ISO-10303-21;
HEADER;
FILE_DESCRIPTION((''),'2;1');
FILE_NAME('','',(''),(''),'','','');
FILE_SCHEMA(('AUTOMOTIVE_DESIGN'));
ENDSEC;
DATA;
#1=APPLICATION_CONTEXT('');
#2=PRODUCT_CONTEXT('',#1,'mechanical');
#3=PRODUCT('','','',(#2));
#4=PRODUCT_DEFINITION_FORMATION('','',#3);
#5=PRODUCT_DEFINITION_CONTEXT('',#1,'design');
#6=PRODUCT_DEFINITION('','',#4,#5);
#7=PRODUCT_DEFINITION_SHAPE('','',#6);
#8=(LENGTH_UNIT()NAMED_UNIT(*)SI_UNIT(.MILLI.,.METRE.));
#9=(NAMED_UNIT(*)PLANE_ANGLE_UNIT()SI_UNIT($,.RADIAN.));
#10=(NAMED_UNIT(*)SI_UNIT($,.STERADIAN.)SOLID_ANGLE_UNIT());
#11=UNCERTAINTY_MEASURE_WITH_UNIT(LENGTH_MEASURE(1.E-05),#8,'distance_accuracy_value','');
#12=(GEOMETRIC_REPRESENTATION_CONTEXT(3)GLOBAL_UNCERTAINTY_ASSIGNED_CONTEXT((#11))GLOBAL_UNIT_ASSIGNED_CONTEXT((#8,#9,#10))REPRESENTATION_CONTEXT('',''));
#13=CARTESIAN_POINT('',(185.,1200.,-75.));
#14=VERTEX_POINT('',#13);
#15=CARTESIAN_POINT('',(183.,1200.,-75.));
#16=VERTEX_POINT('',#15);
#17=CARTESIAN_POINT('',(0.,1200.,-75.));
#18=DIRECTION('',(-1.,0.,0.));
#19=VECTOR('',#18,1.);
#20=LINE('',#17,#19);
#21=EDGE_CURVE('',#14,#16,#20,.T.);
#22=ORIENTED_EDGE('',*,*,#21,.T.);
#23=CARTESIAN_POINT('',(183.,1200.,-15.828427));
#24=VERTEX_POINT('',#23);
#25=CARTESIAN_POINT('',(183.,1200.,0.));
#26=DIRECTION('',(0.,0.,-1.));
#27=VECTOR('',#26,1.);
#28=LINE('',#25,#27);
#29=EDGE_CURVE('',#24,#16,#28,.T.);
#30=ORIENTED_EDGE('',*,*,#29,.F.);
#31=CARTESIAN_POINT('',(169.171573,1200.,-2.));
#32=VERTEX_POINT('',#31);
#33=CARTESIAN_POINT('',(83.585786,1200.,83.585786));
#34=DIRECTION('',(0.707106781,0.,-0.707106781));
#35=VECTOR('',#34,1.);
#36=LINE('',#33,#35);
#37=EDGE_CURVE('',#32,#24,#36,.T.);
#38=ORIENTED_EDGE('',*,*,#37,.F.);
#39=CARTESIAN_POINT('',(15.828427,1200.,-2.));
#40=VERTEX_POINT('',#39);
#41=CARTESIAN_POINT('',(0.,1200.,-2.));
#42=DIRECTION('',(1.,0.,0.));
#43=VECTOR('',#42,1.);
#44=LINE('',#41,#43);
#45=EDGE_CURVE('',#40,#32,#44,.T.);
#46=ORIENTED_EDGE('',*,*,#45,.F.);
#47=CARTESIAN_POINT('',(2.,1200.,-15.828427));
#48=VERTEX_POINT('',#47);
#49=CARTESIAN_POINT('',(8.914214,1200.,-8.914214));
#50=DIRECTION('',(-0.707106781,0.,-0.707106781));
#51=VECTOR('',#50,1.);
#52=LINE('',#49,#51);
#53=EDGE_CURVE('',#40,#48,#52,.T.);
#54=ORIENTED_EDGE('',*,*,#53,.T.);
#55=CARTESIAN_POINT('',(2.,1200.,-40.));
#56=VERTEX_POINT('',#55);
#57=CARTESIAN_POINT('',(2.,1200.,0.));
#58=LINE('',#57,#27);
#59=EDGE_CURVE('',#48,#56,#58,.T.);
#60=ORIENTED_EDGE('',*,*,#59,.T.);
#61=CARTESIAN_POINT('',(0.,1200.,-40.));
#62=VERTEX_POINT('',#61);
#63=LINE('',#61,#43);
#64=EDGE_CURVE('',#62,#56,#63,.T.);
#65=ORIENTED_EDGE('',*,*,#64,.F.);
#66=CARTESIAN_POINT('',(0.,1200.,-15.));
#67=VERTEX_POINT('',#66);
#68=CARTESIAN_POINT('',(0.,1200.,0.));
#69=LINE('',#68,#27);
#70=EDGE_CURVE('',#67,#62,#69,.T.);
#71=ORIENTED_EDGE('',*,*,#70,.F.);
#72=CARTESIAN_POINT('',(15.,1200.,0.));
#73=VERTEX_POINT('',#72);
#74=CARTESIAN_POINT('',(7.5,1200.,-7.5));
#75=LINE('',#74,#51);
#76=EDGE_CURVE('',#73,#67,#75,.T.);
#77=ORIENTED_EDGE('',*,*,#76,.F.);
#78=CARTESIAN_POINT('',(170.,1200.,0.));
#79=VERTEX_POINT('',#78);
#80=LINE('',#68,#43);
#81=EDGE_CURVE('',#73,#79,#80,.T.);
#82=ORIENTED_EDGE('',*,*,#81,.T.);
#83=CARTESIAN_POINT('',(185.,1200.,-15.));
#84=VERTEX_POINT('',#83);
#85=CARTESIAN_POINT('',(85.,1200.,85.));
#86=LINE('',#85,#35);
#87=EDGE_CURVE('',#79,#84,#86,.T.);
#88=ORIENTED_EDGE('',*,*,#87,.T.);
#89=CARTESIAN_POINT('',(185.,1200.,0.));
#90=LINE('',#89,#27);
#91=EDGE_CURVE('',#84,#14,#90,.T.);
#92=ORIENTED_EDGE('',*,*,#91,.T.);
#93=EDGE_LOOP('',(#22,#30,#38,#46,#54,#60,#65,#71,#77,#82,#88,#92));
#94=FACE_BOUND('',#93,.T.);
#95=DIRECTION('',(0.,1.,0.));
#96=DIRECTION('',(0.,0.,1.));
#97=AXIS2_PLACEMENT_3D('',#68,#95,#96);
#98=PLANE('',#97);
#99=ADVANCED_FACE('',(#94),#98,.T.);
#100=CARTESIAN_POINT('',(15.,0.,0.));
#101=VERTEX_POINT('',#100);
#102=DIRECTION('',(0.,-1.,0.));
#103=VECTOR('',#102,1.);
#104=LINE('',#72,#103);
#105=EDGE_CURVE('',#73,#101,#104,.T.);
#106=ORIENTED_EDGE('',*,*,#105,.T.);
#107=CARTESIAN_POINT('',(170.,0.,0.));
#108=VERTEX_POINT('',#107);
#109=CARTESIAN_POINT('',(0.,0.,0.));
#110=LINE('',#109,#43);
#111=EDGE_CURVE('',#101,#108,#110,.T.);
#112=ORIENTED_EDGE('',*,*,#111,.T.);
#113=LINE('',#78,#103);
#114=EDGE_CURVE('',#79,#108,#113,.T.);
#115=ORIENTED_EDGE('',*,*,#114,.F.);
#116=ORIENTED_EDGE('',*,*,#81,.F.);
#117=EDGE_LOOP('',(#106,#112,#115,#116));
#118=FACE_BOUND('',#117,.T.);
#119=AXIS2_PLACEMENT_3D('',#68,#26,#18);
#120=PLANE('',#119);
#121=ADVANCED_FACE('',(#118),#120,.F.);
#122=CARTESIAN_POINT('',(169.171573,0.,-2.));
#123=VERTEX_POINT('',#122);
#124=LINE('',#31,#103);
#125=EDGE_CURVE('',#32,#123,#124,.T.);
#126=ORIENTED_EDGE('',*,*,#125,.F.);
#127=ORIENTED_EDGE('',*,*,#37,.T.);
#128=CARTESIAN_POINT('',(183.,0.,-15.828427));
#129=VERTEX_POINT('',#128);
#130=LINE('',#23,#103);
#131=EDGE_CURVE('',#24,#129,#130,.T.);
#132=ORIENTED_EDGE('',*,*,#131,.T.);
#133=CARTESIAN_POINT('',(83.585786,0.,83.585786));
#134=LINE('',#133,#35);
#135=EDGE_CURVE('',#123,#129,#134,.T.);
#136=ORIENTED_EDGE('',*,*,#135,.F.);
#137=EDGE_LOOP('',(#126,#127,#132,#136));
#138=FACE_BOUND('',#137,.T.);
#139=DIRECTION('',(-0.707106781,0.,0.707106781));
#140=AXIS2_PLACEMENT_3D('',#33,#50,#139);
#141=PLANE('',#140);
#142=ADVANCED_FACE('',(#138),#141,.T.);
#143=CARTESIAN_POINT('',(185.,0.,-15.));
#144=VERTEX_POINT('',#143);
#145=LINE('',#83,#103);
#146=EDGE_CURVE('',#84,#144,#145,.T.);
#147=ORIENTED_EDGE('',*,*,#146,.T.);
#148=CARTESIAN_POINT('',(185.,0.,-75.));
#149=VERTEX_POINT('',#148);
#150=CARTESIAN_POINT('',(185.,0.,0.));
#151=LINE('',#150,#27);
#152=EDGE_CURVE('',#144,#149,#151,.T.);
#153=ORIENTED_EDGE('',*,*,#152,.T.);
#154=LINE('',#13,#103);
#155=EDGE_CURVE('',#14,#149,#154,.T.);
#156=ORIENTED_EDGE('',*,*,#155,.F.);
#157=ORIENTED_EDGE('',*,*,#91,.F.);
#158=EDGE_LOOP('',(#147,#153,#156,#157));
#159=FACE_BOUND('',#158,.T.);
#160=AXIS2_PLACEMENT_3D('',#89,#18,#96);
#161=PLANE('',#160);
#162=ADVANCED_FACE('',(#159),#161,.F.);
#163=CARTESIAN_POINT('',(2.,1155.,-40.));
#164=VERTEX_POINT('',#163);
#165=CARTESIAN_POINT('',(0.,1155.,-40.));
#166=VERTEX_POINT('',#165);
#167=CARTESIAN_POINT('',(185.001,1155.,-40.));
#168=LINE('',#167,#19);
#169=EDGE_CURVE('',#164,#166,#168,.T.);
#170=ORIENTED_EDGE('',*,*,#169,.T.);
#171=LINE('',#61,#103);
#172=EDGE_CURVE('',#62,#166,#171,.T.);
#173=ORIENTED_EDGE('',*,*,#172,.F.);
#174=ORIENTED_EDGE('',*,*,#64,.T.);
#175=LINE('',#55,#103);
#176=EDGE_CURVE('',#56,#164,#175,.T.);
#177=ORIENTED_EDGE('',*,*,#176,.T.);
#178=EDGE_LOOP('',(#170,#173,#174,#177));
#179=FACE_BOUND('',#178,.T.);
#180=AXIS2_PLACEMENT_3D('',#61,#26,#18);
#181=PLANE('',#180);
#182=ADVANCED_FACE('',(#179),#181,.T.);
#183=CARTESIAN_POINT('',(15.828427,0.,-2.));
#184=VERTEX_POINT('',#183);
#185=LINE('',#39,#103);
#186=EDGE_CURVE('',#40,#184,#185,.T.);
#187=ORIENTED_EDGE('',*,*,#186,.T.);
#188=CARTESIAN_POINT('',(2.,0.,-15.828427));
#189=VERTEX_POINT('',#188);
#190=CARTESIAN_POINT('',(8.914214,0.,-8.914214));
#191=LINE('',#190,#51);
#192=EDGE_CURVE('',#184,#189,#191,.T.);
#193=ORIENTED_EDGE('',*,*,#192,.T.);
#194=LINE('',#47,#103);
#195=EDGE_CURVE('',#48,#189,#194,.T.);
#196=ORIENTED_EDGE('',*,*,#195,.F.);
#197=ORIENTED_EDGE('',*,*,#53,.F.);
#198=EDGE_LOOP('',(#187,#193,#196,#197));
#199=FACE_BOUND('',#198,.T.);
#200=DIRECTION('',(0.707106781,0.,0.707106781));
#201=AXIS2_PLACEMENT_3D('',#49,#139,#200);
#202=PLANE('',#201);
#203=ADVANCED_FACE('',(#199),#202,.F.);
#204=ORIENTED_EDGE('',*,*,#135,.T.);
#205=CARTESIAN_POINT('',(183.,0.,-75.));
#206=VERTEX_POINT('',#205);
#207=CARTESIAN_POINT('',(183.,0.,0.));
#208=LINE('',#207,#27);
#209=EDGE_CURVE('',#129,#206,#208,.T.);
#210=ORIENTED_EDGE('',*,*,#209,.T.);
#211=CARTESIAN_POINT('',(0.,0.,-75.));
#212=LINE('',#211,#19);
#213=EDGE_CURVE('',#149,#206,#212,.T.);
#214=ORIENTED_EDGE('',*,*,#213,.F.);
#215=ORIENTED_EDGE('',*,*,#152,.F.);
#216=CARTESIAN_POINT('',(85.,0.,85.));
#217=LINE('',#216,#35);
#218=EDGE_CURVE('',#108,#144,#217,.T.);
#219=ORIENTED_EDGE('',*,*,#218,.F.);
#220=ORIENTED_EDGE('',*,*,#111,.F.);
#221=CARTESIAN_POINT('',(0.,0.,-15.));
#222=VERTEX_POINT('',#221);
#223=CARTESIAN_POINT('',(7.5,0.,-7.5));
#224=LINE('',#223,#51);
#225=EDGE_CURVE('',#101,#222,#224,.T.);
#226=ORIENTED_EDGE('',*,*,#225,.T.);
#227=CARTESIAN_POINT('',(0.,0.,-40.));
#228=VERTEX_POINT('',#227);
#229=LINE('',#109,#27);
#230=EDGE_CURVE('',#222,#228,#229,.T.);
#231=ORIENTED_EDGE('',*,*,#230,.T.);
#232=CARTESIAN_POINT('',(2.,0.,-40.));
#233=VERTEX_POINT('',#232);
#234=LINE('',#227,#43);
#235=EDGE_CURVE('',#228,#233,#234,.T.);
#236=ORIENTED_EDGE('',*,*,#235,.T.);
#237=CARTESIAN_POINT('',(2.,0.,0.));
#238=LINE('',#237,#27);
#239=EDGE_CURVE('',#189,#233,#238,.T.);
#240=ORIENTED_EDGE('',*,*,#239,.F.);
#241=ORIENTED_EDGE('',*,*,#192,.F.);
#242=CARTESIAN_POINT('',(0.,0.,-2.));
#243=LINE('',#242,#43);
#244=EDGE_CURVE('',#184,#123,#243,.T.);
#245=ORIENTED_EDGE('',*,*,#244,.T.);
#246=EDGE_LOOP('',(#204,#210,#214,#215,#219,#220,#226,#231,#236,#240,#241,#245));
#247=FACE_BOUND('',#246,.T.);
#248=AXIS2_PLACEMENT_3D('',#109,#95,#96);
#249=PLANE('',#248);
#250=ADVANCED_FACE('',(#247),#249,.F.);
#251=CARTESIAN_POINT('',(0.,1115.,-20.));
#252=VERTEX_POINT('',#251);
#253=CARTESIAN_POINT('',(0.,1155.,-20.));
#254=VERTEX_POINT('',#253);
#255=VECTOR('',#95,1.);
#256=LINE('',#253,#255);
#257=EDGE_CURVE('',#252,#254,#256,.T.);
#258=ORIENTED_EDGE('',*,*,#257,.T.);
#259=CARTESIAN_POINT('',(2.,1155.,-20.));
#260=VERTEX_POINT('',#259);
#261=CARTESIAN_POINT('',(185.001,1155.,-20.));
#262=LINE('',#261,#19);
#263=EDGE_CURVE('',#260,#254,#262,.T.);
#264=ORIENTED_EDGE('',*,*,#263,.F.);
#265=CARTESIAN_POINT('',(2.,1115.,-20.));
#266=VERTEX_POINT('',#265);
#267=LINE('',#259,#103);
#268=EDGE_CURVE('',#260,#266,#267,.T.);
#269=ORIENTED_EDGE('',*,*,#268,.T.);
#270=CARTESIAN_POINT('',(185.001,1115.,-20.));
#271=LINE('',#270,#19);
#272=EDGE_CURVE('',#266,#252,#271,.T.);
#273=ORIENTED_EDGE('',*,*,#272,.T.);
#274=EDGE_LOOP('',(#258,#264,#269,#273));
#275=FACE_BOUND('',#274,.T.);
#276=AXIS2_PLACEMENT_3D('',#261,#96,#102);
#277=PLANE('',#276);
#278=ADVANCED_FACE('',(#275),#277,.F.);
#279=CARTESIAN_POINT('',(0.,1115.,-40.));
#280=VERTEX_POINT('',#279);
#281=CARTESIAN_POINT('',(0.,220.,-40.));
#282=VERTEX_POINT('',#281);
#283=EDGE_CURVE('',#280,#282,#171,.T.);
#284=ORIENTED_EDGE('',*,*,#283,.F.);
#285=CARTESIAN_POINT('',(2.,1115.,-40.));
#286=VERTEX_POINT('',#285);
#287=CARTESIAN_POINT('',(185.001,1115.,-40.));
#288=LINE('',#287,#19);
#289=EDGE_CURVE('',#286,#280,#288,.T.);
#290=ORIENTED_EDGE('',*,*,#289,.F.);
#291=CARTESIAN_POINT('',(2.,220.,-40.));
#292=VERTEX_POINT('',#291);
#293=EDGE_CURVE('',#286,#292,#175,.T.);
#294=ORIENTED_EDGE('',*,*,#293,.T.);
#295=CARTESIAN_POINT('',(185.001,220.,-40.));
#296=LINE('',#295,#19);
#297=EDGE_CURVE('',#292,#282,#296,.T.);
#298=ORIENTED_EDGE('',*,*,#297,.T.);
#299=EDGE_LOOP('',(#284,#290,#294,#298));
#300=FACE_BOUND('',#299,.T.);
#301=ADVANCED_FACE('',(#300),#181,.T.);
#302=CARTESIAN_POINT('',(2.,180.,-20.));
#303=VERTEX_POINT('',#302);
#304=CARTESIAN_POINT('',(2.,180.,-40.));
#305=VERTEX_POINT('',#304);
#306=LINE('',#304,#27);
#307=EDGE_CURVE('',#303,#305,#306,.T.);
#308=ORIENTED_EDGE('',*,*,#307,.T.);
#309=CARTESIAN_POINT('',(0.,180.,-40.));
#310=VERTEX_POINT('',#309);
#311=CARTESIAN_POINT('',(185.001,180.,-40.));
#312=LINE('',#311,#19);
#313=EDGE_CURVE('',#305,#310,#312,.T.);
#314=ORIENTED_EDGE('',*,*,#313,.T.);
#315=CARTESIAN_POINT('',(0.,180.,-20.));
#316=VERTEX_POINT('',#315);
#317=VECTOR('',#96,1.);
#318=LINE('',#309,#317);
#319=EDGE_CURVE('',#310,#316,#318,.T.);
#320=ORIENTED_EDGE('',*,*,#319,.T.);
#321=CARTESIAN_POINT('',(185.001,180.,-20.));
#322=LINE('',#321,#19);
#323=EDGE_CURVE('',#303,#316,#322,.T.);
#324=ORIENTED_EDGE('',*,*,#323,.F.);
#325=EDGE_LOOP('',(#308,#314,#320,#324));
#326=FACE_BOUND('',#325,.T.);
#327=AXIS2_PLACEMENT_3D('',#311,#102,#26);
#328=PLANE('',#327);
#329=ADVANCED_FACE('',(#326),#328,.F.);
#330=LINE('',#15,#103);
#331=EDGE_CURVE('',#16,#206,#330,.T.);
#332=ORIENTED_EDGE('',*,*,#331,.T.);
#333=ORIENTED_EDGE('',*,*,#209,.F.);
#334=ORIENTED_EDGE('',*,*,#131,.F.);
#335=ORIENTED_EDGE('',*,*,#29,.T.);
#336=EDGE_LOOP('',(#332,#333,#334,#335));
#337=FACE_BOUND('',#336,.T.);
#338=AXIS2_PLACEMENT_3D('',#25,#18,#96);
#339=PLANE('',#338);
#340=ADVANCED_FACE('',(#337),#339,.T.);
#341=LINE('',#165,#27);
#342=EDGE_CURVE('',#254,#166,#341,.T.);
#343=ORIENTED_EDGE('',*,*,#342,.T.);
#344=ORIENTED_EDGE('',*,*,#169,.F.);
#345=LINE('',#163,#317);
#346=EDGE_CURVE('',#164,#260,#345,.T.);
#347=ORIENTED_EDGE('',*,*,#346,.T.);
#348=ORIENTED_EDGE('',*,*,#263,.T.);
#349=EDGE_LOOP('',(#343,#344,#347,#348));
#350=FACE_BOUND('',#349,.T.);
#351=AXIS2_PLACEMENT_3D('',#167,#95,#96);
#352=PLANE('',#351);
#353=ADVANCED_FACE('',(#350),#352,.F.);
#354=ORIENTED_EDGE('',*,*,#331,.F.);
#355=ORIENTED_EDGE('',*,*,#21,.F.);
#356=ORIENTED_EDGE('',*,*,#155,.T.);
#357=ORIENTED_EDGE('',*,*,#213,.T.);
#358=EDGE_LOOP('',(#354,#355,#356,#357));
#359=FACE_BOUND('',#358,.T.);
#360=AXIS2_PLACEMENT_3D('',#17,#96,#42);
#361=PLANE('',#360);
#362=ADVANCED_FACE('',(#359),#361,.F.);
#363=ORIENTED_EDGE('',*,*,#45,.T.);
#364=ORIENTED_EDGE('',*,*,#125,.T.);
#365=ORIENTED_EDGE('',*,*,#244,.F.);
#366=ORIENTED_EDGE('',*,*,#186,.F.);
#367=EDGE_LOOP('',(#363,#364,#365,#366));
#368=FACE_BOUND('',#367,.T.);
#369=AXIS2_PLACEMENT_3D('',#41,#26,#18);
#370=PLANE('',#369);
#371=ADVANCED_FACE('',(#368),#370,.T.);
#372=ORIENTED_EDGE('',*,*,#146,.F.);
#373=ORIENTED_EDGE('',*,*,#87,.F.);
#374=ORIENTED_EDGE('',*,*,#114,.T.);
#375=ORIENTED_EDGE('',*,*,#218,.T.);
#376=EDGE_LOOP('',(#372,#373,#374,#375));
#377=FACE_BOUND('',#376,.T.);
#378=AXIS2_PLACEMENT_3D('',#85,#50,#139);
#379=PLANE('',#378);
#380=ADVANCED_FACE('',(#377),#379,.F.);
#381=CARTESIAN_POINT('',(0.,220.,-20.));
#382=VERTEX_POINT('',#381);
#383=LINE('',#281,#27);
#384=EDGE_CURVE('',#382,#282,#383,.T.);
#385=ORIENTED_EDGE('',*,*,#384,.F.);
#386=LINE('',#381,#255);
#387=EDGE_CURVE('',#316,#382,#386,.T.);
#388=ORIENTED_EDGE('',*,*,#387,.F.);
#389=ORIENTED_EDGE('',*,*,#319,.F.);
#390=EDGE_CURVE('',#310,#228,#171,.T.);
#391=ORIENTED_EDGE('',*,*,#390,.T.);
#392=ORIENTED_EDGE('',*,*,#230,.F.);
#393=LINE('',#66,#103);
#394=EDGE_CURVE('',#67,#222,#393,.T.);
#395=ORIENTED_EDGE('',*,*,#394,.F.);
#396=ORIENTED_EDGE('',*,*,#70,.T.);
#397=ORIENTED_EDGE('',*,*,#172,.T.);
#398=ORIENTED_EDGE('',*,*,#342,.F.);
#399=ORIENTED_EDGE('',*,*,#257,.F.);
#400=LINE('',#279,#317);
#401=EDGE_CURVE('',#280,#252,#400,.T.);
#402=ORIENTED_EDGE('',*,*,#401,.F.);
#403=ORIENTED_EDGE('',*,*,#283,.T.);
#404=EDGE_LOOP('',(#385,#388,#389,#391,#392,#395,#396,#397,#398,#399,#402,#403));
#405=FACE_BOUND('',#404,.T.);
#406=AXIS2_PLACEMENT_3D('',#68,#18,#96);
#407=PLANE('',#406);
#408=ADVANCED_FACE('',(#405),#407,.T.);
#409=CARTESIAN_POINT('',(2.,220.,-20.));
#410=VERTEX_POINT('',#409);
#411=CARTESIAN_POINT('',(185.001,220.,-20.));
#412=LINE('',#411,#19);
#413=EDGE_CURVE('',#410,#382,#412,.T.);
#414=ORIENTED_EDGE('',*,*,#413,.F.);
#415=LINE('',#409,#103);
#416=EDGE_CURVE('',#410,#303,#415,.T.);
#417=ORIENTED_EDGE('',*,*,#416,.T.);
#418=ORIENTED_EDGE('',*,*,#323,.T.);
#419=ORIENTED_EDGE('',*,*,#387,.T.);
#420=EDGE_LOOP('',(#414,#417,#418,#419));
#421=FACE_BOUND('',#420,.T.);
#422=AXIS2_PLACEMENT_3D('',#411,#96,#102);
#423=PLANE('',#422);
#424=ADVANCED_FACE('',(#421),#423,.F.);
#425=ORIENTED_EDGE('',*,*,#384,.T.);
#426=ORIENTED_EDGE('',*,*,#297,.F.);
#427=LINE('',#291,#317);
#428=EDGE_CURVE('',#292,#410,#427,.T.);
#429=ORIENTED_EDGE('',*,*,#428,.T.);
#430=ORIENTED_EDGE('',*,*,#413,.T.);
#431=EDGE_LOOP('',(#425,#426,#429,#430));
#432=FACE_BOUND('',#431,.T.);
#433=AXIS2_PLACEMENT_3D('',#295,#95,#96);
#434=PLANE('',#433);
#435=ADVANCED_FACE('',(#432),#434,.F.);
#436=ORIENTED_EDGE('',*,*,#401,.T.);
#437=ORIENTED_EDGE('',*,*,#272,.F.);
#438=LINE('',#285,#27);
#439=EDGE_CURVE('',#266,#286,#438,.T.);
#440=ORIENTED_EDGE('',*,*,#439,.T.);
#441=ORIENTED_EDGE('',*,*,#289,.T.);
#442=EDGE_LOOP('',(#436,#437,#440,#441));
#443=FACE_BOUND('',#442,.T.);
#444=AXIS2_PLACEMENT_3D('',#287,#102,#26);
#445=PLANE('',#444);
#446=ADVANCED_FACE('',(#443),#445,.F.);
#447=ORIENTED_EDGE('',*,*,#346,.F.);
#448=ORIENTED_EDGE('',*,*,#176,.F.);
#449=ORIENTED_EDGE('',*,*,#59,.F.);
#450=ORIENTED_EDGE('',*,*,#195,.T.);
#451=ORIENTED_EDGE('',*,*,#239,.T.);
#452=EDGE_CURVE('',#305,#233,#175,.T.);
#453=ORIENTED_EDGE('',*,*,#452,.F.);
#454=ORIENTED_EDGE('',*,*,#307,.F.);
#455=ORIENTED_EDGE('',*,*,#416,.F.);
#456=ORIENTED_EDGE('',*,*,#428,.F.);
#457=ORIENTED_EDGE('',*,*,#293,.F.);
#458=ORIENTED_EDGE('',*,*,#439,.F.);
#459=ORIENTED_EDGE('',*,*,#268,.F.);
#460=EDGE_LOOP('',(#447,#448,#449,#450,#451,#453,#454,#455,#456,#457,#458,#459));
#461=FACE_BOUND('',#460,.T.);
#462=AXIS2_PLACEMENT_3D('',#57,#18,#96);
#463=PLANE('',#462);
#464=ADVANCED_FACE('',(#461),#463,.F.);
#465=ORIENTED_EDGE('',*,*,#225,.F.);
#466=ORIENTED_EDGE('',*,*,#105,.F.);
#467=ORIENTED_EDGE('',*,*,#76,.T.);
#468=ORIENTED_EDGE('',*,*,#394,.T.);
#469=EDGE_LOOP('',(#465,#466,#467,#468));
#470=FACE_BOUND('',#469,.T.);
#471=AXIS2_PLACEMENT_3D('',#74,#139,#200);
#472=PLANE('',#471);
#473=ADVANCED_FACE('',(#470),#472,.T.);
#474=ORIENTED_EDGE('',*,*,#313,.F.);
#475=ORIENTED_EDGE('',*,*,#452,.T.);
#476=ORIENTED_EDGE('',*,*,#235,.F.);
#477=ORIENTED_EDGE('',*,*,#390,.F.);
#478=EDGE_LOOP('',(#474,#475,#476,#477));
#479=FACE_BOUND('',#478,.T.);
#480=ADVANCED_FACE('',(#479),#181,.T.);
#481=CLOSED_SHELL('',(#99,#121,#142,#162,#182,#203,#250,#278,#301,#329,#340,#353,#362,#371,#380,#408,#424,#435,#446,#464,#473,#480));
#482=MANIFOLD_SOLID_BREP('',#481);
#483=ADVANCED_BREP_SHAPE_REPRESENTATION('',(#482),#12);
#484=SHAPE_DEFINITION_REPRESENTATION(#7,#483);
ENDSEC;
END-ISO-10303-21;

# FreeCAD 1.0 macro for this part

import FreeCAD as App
import Part
import Sketcher
from FreeCAD import Vector
Q = App.Units.Quantity


def add_polygon(sketch, points):
    """Adds a closed chain of lines whose ends are joined by coincident constraints."""
    first, n = sketch.GeometryCount, len(points)
    for a, b in zip(points, points[1:] + points[:1]):
        sketch.addGeometry(Part.LineSegment(App.Vector(*a, 0), App.Vector(*b, 0)), False)
    for i in range(n):
        sketch.addConstraint(Sketcher.Constraint("Coincident", first + i, 2, first + (i + 1) % n, 1))

doc = App.newDocument("Part")
body = doc.addObject("PartDesign::Body", "Body")

# Sketch on XZ plane
sketch1 = body.newObject("Sketcher::SketchObject", "Sketch")
sketch1.AttachmentSupport = (doc.getObject("XZ_Plane"), [""])
sketch1.MapMode = "FlatFace"
add_polygon(sketch1, [(15.8, -2), (2, -15.8), (2, -40), (0, -40), (0, -15), (15, 0), (170, 0), (185, -15), (185, -75), (183, -75), (183, -15.8), (169.2, -2)])  # lines 0-11
sketch1.addConstraint([
    Sketcher.Constraint("Vertical", 1),
    Sketcher.Constraint("Horizontal", 2),
    Sketcher.Constraint("Vertical", 3),
    Sketcher.Constraint("Horizontal", 5),
    Sketcher.Constraint("Vertical", 7),
    Sketcher.Constraint("Horizontal", 8),
    Sketcher.Constraint("Vertical", 9),
    Sketcher.Constraint("Horizontal", 11),
    Sketcher.Constraint("PointOnObject", 2, 2, -2),
    Sketcher.Constraint("PointOnObject", 4, 2, -1),
    Sketcher.Constraint("Parallel", 0, 4),
    Sketcher.Constraint("Perpendicular", 4, 6),
    Sketcher.Constraint("Parallel", 6, 10),
    Sketcher.Constraint("Horizontal", 3, 2, 6, 2),
    Sketcher.Constraint("Horizontal", 0, 2, 9, 2),
    Sketcher.Constraint("Equal", 2, 8),
    Sketcher.Constraint("Equal", 4, 6),
    Sketcher.Constraint("DistanceX", 2, 2, 2, 1, Q("2 mm")),
    Sketcher.Constraint("DistanceX", 5, 1, 5, 2, Q("155 mm")),
    Sketcher.Constraint("DistanceY", 3, 1, 3, 2, Q("25 mm")),
    Sketcher.Constraint("DistanceY", 7, 2, 7, 1, Q("60 mm")),
    Sketcher.Constraint("DistanceY", 1, 2, -1, 1, Q("40 mm")),
    Sketcher.Constraint("DistanceY", 10, 2, -1, 1, Q("2 mm")),
    Sketcher.Constraint("Distance", 0, Q("19.556349 mm")),
])
pad1 = body.newObject("PartDesign::Pad", "Pad")
pad1.Profile = sketch1
pad1.Length = 1200
pad1.Reversed = True

# Sketch on YZ plane
sketch2 = body.newObject("Sketcher::SketchObject", "Sketch001")
sketch2.AttachmentSupport = (doc.getObject("YZ_Plane"), [""])
sketch2.MapMode = "FlatFace"
add_polygon(sketch2, [(220, -40), (180, -40), (180, -20), (220, -20)])  # lines 0-3
sketch2.addConstraint([
    Sketcher.Constraint("Horizontal", 0),
    Sketcher.Constraint("Vertical", 1),
    Sketcher.Constraint("Horizontal", 2),
    Sketcher.Constraint("Vertical", 3),
    Sketcher.Constraint("DistanceX", 0, 2, 0, 1, Q("40 mm")),
    Sketcher.Constraint("DistanceY", 1, 1, 1, 2, Q("20 mm")),
    Sketcher.Constraint("DistanceX", -1, 1, 0, 2, Q("180 mm")),
    Sketcher.Constraint("DistanceY", 0, 2, -1, 1, Q("40 mm")),
])
pocket1 = body.newObject("PartDesign::Pocket", "Pocket")
pocket1.Profile = sketch2
pocket1.Type = "UpToFirst"
pocket1.Reversed = True

# Sketch on YZ plane
sketch3 = body.newObject("Sketcher::SketchObject", "Sketch002")
sketch3.AttachmentSupport = (doc.getObject("YZ_Plane"), [""])
sketch3.MapMode = "FlatFace"
add_polygon(sketch3, [(1155, -40), (1115, -40), (1115, -20), (1155, -20)])  # lines 0-3
sketch3.addConstraint([
    Sketcher.Constraint("Horizontal", 0),
    Sketcher.Constraint("Vertical", 1),
    Sketcher.Constraint("Horizontal", 2),
    Sketcher.Constraint("Vertical", 3),
    Sketcher.Constraint("DistanceX", 0, 2, 0, 1, Q("40 mm")),
    Sketcher.Constraint("DistanceY", 1, 1, 1, 2, Q("20 mm")),
    Sketcher.Constraint("DistanceX", -1, 1, 0, 2, Q("1115 mm")),
    Sketcher.Constraint("DistanceY", 0, 2, -1, 1, Q("40 mm")),
])
pocket2 = body.newObject("PartDesign::Pocket", "Pocket001")
pocket2.Profile = sketch3
pocket2.Type = "UpToFirst"
pocket2.Reversed = True

doc.recompute()
